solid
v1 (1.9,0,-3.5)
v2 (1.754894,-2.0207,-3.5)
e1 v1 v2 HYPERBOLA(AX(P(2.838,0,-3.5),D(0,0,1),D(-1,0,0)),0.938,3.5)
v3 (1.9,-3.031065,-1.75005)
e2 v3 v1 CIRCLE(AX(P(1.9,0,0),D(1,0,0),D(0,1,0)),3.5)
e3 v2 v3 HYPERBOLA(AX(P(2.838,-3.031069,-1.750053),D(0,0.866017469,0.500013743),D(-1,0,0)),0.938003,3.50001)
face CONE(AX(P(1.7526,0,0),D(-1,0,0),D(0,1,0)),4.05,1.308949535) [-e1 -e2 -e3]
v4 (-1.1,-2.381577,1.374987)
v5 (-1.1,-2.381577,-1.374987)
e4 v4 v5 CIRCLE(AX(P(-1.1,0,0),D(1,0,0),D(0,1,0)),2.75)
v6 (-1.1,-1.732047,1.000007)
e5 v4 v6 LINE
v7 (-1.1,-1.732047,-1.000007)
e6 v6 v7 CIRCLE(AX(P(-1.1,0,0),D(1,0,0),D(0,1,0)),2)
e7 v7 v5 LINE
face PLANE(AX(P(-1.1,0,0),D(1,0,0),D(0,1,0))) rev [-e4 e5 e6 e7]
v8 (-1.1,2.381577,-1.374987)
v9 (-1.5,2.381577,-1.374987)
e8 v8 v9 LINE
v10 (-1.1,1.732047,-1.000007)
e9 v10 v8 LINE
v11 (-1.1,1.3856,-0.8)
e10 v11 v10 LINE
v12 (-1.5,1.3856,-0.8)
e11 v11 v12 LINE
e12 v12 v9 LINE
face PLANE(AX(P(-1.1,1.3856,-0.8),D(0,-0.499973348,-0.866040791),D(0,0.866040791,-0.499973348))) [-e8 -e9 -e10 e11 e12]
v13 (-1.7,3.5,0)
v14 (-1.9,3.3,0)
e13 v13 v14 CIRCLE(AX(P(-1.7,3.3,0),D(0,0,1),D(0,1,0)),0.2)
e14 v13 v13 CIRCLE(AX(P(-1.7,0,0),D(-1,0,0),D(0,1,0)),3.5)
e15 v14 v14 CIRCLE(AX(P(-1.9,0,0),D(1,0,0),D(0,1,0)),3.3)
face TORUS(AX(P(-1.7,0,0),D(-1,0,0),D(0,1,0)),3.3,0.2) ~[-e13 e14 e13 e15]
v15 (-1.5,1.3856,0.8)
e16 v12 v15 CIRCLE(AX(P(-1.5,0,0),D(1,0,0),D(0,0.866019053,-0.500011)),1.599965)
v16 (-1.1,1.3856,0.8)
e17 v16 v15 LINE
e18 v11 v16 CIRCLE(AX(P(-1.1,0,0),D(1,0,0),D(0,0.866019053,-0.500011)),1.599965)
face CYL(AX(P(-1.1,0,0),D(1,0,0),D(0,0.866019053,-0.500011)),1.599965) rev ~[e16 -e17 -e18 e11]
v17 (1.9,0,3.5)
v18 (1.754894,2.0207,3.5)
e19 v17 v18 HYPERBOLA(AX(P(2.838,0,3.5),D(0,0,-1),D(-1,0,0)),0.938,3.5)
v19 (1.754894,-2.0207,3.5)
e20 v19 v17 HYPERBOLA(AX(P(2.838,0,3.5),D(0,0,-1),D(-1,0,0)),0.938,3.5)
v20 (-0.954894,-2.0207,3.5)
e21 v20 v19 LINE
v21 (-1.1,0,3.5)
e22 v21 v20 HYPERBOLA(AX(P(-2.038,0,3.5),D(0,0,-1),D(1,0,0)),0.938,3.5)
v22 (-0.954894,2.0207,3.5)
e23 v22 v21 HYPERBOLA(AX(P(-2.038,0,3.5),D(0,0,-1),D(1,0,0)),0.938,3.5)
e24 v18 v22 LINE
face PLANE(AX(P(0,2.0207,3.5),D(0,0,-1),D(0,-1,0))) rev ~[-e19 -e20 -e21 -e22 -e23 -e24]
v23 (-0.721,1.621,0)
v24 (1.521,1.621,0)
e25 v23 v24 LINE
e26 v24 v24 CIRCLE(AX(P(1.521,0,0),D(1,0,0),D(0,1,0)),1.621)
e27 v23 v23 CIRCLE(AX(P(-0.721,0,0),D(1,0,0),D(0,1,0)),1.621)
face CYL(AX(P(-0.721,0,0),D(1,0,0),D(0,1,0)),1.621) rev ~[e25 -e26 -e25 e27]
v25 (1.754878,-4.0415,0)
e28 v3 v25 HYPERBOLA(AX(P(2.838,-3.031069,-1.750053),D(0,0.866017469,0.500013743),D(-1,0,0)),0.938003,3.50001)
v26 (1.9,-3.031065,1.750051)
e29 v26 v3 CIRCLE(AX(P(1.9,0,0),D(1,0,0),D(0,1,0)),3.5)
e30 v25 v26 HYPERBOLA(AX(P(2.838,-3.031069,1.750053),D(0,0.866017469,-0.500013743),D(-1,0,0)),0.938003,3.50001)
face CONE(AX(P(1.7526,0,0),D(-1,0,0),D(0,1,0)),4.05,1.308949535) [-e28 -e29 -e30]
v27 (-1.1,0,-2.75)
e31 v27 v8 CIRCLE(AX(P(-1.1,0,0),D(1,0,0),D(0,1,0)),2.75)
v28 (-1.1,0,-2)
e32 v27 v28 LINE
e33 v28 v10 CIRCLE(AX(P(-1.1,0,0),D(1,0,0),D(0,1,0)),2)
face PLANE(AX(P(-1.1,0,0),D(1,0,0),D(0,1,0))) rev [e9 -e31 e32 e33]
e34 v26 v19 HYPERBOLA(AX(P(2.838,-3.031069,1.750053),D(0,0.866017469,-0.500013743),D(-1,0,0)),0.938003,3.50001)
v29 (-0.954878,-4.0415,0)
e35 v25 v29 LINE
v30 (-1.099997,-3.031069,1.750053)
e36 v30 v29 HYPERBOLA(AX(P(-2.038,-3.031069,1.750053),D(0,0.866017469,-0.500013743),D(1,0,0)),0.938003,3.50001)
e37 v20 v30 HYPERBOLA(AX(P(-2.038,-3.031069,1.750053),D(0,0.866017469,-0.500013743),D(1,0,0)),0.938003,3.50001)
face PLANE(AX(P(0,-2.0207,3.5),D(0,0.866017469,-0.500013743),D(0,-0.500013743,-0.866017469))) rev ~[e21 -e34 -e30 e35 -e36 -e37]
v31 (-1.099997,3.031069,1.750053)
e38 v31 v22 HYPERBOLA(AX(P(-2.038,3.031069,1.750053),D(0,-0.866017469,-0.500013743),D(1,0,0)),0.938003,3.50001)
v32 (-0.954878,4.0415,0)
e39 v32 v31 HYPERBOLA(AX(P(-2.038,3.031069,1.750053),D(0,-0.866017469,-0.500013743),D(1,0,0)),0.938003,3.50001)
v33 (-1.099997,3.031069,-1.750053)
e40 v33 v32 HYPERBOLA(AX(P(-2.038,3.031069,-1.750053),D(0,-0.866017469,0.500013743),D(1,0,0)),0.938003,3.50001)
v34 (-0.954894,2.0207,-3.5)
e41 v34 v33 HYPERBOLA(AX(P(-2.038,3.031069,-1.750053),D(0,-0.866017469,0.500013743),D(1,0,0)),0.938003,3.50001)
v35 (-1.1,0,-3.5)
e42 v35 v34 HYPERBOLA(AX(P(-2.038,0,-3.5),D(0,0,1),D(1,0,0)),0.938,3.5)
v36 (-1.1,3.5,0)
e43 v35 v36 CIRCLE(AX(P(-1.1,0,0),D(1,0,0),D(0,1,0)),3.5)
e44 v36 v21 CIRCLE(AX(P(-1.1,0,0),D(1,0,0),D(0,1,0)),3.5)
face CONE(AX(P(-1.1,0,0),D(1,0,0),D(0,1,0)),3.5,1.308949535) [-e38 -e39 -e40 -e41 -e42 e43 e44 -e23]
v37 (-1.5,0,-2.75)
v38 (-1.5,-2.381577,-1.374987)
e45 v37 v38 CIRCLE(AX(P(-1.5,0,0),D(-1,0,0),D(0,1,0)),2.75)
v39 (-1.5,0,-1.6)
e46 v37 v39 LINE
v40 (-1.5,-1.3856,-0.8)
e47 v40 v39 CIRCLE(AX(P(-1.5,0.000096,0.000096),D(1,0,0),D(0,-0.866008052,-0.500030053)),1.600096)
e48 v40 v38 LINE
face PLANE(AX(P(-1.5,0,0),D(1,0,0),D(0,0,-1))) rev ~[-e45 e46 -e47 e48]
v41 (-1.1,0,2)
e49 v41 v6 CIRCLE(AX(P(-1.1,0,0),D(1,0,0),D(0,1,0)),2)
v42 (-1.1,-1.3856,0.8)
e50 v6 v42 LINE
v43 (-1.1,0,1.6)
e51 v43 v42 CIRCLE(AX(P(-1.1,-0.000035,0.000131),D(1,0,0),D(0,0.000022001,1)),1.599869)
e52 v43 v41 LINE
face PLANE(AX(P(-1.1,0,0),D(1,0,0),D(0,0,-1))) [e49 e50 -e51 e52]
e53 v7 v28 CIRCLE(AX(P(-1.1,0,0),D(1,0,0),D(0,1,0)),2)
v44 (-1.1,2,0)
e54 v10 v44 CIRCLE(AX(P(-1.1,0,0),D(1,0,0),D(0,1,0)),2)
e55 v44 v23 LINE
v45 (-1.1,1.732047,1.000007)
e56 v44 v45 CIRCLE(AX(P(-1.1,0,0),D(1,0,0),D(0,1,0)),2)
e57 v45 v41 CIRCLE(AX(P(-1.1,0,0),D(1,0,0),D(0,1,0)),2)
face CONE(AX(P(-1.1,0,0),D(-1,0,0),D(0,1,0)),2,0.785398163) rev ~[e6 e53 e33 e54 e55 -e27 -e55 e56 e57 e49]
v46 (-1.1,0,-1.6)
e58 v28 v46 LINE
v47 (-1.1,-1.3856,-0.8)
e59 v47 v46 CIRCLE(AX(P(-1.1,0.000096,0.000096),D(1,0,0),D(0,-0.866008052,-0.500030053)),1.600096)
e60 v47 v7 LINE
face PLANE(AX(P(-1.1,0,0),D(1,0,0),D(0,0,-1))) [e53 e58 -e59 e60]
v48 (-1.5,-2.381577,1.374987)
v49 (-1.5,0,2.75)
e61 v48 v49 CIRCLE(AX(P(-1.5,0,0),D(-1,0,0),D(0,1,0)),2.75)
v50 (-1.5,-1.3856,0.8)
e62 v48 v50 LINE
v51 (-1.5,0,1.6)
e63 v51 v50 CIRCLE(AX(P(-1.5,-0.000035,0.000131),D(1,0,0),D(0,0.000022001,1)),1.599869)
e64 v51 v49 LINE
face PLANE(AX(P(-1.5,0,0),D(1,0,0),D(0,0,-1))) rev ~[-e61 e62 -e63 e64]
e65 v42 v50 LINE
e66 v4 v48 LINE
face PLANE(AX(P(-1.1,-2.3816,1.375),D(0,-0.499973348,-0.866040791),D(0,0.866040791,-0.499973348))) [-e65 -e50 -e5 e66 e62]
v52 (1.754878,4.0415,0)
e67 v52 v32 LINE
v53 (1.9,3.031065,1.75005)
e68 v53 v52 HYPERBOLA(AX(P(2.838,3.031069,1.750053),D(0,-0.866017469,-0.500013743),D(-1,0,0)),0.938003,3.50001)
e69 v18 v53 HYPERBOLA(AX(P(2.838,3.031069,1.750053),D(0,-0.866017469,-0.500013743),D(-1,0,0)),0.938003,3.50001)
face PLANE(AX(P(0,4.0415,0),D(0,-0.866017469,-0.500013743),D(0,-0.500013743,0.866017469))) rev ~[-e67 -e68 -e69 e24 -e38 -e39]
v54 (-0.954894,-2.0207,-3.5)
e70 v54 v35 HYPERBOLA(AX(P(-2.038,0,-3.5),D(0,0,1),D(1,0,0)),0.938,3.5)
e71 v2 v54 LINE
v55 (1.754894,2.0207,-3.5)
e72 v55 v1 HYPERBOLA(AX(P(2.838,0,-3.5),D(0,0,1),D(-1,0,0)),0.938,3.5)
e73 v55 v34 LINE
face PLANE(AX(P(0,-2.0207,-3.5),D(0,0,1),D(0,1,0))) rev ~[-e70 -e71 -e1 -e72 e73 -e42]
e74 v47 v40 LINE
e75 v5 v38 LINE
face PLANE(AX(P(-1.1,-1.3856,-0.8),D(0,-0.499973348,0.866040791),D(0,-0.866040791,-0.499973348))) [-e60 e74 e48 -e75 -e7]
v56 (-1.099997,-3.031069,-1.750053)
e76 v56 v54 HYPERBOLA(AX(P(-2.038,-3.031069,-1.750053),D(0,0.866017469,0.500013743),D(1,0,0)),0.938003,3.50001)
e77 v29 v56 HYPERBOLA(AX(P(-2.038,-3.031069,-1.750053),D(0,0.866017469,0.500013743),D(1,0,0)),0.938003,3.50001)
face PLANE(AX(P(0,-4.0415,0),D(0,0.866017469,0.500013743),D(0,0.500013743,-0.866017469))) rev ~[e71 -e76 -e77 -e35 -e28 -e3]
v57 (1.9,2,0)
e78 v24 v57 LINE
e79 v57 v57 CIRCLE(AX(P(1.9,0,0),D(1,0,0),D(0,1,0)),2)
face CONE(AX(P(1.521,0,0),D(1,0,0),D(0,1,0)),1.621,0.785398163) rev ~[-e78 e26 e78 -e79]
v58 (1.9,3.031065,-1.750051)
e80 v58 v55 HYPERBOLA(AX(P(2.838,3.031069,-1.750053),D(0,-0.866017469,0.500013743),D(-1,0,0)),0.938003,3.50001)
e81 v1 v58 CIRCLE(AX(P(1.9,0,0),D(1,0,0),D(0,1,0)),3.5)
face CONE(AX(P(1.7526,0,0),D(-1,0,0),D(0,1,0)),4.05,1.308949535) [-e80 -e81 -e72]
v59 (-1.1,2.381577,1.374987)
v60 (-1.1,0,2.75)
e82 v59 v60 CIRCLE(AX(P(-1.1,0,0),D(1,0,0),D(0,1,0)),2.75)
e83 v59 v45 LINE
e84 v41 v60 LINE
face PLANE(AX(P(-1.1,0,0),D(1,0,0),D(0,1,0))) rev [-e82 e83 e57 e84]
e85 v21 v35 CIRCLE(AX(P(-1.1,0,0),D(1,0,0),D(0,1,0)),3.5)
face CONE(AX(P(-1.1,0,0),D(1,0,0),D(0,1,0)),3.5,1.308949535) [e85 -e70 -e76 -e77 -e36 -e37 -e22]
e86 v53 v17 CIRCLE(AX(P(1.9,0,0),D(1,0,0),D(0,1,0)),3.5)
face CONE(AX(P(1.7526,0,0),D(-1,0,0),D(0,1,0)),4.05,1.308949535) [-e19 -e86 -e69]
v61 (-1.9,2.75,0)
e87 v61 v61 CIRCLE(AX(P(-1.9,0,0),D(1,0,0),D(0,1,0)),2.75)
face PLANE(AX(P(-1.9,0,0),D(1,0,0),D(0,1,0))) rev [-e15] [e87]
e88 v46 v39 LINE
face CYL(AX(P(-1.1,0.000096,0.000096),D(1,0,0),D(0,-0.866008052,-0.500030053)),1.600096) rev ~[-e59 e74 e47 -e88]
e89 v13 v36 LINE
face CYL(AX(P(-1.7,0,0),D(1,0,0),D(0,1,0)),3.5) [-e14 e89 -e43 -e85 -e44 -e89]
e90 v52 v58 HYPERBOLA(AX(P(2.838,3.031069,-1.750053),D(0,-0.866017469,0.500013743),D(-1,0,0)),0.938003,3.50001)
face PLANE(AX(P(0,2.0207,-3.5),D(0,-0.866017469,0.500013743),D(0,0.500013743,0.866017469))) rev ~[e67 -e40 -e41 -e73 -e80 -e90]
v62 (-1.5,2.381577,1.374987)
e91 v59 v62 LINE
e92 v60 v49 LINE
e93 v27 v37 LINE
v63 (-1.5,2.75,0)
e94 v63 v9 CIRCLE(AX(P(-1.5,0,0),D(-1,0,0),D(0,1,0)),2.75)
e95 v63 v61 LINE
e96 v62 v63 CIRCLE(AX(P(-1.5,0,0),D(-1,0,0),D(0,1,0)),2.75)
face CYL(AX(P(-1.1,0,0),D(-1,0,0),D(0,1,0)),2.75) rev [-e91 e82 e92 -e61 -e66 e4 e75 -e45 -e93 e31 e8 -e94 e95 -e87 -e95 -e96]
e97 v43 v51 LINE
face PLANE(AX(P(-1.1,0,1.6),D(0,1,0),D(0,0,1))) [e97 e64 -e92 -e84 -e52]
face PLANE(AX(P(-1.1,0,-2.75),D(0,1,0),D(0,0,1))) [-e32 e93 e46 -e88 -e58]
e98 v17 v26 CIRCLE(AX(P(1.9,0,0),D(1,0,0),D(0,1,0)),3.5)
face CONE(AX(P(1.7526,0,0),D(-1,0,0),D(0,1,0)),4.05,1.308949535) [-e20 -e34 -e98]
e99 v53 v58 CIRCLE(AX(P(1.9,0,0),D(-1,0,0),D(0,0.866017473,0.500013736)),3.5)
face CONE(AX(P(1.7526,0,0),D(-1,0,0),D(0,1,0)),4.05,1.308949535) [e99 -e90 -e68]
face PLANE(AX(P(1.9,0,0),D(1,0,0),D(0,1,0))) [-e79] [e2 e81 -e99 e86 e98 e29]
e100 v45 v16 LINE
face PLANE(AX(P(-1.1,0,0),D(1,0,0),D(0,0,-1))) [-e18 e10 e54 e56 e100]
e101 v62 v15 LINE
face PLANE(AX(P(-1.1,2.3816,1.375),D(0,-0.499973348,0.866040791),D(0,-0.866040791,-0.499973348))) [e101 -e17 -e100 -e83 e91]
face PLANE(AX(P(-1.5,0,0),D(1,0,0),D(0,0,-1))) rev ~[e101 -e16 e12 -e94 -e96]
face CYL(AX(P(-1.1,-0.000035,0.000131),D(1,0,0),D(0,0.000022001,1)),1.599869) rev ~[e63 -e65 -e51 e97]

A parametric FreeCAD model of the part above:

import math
import FreeCAD as App
import Part
import Sketcher
Q = App.Units.Quantity


def add_polygon(sketch, points):
    """Adds a closed chain of lines whose ends are joined by coincident constraints."""
    first, n = sketch.GeometryCount, len(points)
    for a, b in zip(points, points[1:] + points[:1]):
        sketch.addGeometry(Part.LineSegment(App.Vector(*a, 0), App.Vector(*b, 0)), False)
    for i in range(n):
        sketch.addConstraint(Sketcher.Constraint("Coincident", first + i, 2, first + (i + 1) % n, 1))

doc = App.newDocument("Part")
body = doc.addObject("PartDesign::Body", "Body")

sketch1 = body.newObject("Sketcher::SketchObject", "Sketch")
sketch1.AttachmentSupport = (doc.getObject("XY_Plane"), [""])
sketch1.MapMode = "FlatFace"
sketch1.addGeometry([
    Part.LineSegment(App.Vector(-1.1, 0, 0), App.Vector(1.9, 0, 0)),
    Part.LineSegment(App.Vector(1.9, 0, 0), App.Vector(1.9, 3.5, 0)),
    Part.LineSegment(App.Vector(1.9, 3.5, 0), App.Vector(1.75, 4.05, 0)),
    Part.LineSegment(App.Vector(1.75, 4.05, 0), App.Vector(-0.95, 4.05, 0)),
    Part.LineSegment(App.Vector(-0.95, 4.05, 0), App.Vector(-1.1, 3.5, 0)),
    Part.LineSegment(App.Vector(-1.1, 3.5, 0), App.Vector(-1.7, 3.5, 0)),
    Part.ArcOfCircle(Part.Circle(App.Vector(-1.7, 3.3, 0), App.Vector(0, 0, 1), 0.2), math.radians(90), math.radians(180)),
    Part.LineSegment(App.Vector(-1.9, 3.3, 0), App.Vector(-1.9, 2.75, 0)),
    Part.LineSegment(App.Vector(-1.9, 2.75, 0), App.Vector(-1.1, 2.75, 0)),
    Part.LineSegment(App.Vector(-1.1, 2.75, 0), App.Vector(-1.1, 0, 0)),
], False)
sketch1.addConstraint([
    Sketcher.Constraint("Coincident", 0, 2, 1, 1),
    Sketcher.Constraint("Coincident", 1, 2, 2, 1),
    Sketcher.Constraint("Coincident", 2, 2, 3, 1),
    Sketcher.Constraint("Coincident", 3, 2, 4, 1),
    Sketcher.Constraint("Coincident", 4, 2, 5, 1),
    Sketcher.Constraint("Tangent", 5, 2, 6, 1),
    Sketcher.Constraint("Tangent", 6, 2, 7, 1),
    Sketcher.Constraint("Coincident", 7, 2, 8, 1),
    Sketcher.Constraint("Coincident", 8, 2, 9, 1),
    Sketcher.Constraint("Coincident", 9, 2, 0, 1),
    Sketcher.Constraint("Horizontal", 0),
    Sketcher.Constraint("Vertical", 1),
    Sketcher.Constraint("Horizontal", 3),
    Sketcher.Constraint("Horizontal", 5),
    Sketcher.Constraint("Vertical", 7),
    Sketcher.Constraint("Horizontal", 8),
    Sketcher.Constraint("Vertical", 9),
    Sketcher.Constraint("PointOnObject", 0, 2, -1),
    Sketcher.Constraint("Horizontal", 1, 2, 4, 2),
    Sketcher.Constraint("Vertical", 4, 2, 8, 2),
    Sketcher.Constraint("Equal", 2, 4),
    Sketcher.Constraint("Radius", 6, 0.2),
    Sketcher.Constraint("DistanceX", 0, 1, 0, 2, 3.0),
    Sketcher.Constraint("DistanceX", 5, 2, 5, 1, 0.6),
    Sketcher.Constraint("DistanceY", 1, 1, 1, 2, 3.5),
    Sketcher.Constraint("DistanceY", 7, 2, 7, 1, 0.55),
    Sketcher.Constraint("DistanceX", 6, 3, -1, 1, 1.7),
    Sketcher.Constraint("DistanceY", 7, 2, 3, 2, 1.3),
    Sketcher.Constraint("DistanceX", 3, 2, 3, 1, 2.7052),
])
revolution = body.newObject("PartDesign::Revolution", "Revolution")
revolution.Profile = sketch1
revolution.ReferenceAxis = (sketch1, ["H_Axis"])
revolution.Angle = 360

sketch2 = body.newObject("Sketcher::SketchObject", "Sketch001")
sketch2.AttachmentSupport = (doc.getObject("YZ_Plane"), [""])
sketch2.MapMode = "FlatFace"
add_polygon(sketch2, [(7, -7), (7, 7), (-7, 7), (-7, -7)])
add_polygon(sketch2, [(-4, 0), (-2, 3.5), (2, 3.5), (4, 0), (2, -3.5), (-2, -3.5)])
sketch2.addConstraint([
    Sketcher.Constraint("Vertical", 0),
    Sketcher.Constraint("Horizontal", 1),
    Sketcher.Constraint("Vertical", 2),
    Sketcher.Constraint("Horizontal", 3),
    Sketcher.Constraint("Horizontal", 5),
    Sketcher.Constraint("Horizontal", 8),
    Sketcher.Constraint("Symmetric", 0, 2, 2, 2, -1, 1),
    Sketcher.Constraint("Symmetric", 4, 2, 7, 2, -1, 1),
    Sketcher.Constraint("Symmetric", 6, 2, 9, 2, -1, 1),
    Sketcher.Constraint("PointOnObject", 6, 2, -1),
    Sketcher.Constraint("Parallel", 6, 9),
    Sketcher.Constraint("Vertical", 5, 2, 7, 2),
    Sketcher.Constraint("Equal", 3, 0),
    Sketcher.Constraint("DistanceX", 1, 2, 1, 1, 14.0),
    Sketcher.Constraint("Angle", 4, Q("59.999 deg")),
    Sketcher.Constraint("DistanceY", 7, 2, 5, 2, 7.0),
    Sketcher.Constraint("DistanceX", 5, 1, 5, 2, 4.0414),
])
pocket1 = body.newObject("PartDesign::Pocket", "Pocket")
pocket1.Profile = sketch2
pocket1.Length = 3.8
pocket1.Midplane = True

sketch3 = body.newObject("Sketcher::SketchObject", "Sketch002")
sketch3.AttachmentSupport = (doc.getObject("XY_Plane"), [""])
sketch3.MapMode = "FlatFace"
add_polygon(sketch3, [(-1.1, 0), (1.9, 0), (1.9, 2), (1.5, 1.6), (-0.7, 1.6), (-1.1, 2)])
sketch3.addConstraint([
    Sketcher.Constraint("Horizontal", 0),
    Sketcher.Constraint("Vertical", 1),
    Sketcher.Constraint("Horizontal", 3),
    Sketcher.Constraint("Vertical", 5),
    Sketcher.Constraint("PointOnObject", 0, 2, -1),
    Sketcher.Constraint("Perpendicular", 2, 4),
    Sketcher.Constraint("Horizontal", 1, 2, 4, 2),
    Sketcher.Constraint("Equal", 2, 4),
    Sketcher.Constraint("DistanceX", 0, 1, 0, 2, 3.0),
    Sketcher.Constraint("DistanceY", 1, 1, 1, 2, 2.0),
    Sketcher.Constraint("DistanceX", -1, 1, 0, 2, 1.9),
    Sketcher.Constraint("DistanceX", 3, 2, 3, 1, 2.242),
])
groove = body.newObject("PartDesign::Groove", "Groove")
groove.Profile = sketch3
groove.ReferenceAxis = (sketch3, ["H_Axis"])
groove.Angle = 360

sketch4 = body.newObject("Sketcher::SketchObject", "Sketch003")
sketch4.AttachmentSupport = (doc.getObject("YZ_Plane"), [""])
sketch4.MapMode = "FlatFace"
sketch4.AttachmentOffset = App.Placement(App.Vector(0, 0, -1.1), App.Rotation())
sketch4.addGeometry([
    Part.ArcOfCircle(Part.Circle(App.Vector(0, 0, 0), App.Vector(0, 0, 1), 2.8), math.radians(-30), math.radians(30)),
    Part.LineSegment(App.Vector(2.4, 1.4, 0), App.Vector(1.4, 0.8, 0)),
    Part.ArcOfCircle(Part.Circle(App.Vector(0, 0, 0), App.Vector(0, 0, 1), 1.6), math.radians(-30), math.radians(30)),
    Part.LineSegment(App.Vector(1.4, -0.8, 0), App.Vector(2.4, -1.4, 0)),
], False)
sketch4.addConstraint([
    Sketcher.Constraint("Coincident", 0, 2, 1, 1),
    Sketcher.Constraint("Coincident", 1, 2, 2, 2),
    Sketcher.Constraint("Coincident", 2, 1, 3, 1),
    Sketcher.Constraint("Coincident", 3, 2, 0, 1),
    Sketcher.Constraint("Coincident", 0, 3, -1, 1),
    Sketcher.Constraint("Coincident", 2, 3, -1, 1),
    Sketcher.Constraint("Vertical", 1, 2, 2, 1),
    Sketcher.Constraint("Vertical", 0, 2, 3, 2),
    Sketcher.Constraint("Radius", 2, 1.6),
    Sketcher.Constraint("Radius", 0, 2.75),
    Sketcher.Constraint("DistanceY", -1, 1, 1, 2, 0.8),
    Sketcher.Constraint("DistanceY", 3, 2, 0, 2, 2.75),
])
pad1 = body.newObject("PartDesign::Pad", "Pad")
pad1.Profile = sketch4
pad1.Length = 0.4
pad1.Reversed = True

sketch5 = body.newObject("Sketcher::SketchObject", "Sketch004")
sketch5.AttachmentSupport = (doc.getObject("YZ_Plane"), [""])
sketch5.MapMode = "FlatFace"
sketch5.AttachmentOffset = App.Placement(App.Vector(0, 0, -1.1), App.Rotation())
sketch5.addGeometry([
    Part.LineSegment(App.Vector(0, 1.6, 0), App.Vector(0, 2.8, 0)),
    Part.ArcOfCircle(Part.Circle(App.Vector(0, 0, 0), App.Vector(0, 0, 1), 2.8), math.radians(90), math.radians(150)),
    Part.LineSegment(App.Vector(-2.4, 1.4, 0), App.Vector(-1.4, 0.8, 0)),
    Part.ArcOfCircle(Part.Circle(App.Vector(0, 0, 0), App.Vector(0, 0, 1), 1.6), math.radians(90), math.radians(150)),
], False)
sketch5.addConstraint([
    Sketcher.Constraint("Coincident", 0, 2, 1, 1),
    Sketcher.Constraint("Coincident", 1, 2, 2, 1),
    Sketcher.Constraint("Coincident", 2, 2, 3, 2),
    Sketcher.Constraint("Coincident", 3, 1, 0, 1),
    Sketcher.Constraint("Vertical", 0),
    Sketcher.Constraint("Coincident", 1, 3, -1, 1),
    Sketcher.Constraint("Coincident", 3, 3, -1, 1),
    Sketcher.Constraint("PointOnObject", 0, 2, -2),
    Sketcher.Constraint("Radius", 3, 1.6),
    Sketcher.Constraint("Radius", 1, 2.75),
    Sketcher.Constraint("DistanceY", -1, 1, 2, 2, 0.8),
    Sketcher.Constraint("DistanceY", -1, 1, 1, 2, 1.375),
])
pad2 = body.newObject("PartDesign::Pad", "Pad001")
pad2.Profile = sketch5
pad2.Length = 0.4
pad2.Reversed = True

sketch6 = body.newObject("Sketcher::SketchObject", "Sketch005")
sketch6.AttachmentSupport = (doc.getObject("YZ_Plane"), [""])
sketch6.MapMode = "FlatFace"
sketch6.AttachmentOffset = App.Placement(App.Vector(0, 0, -1.1), App.Rotation())
sketch6.addGeometry([
    Part.ArcOfCircle(Part.Circle(App.Vector(0, 0, 0), App.Vector(0, 0, 1), 1.6), math.radians(-150), math.radians(-90)),
    Part.LineSegment(App.Vector(-1.4, -0.8, 0), App.Vector(-2.4, -1.4, 0)),
    Part.ArcOfCircle(Part.Circle(App.Vector(0, 0, 0), App.Vector(0, 0, 1), 2.8), math.radians(-150), math.radians(-90)),
    Part.LineSegment(App.Vector(0, -2.8, 0), App.Vector(0, -1.6, 0)),
], False)
sketch6.addConstraint([
    Sketcher.Constraint("Coincident", 0, 1, 1, 1),
    Sketcher.Constraint("Coincident", 1, 2, 2, 1),
    Sketcher.Constraint("Coincident", 2, 2, 3, 1),
    Sketcher.Constraint("Coincident", 3, 2, 0, 2),
    Sketcher.Constraint("Vertical", 3),
    Sketcher.Constraint("Coincident", 0, 3, -1, 1),
    Sketcher.Constraint("Coincident", 2, 3, -1, 1),
    Sketcher.Constraint("PointOnObject", 2, 2, -2),
    Sketcher.Constraint("Radius", 0, 1.6),
    Sketcher.Constraint("Radius", 2, 2.75),
    Sketcher.Constraint("DistanceY", 0, 1, -1, 1, 0.8),
    Sketcher.Constraint("DistanceY", 1, 2, -1, 1, 1.375),
])
pad3 = body.newObject("PartDesign::Pad", "Pad002")
pad3.Profile = sketch6
pad3.Length = 0.4
pad3.Reversed = True

doc.recompute()
